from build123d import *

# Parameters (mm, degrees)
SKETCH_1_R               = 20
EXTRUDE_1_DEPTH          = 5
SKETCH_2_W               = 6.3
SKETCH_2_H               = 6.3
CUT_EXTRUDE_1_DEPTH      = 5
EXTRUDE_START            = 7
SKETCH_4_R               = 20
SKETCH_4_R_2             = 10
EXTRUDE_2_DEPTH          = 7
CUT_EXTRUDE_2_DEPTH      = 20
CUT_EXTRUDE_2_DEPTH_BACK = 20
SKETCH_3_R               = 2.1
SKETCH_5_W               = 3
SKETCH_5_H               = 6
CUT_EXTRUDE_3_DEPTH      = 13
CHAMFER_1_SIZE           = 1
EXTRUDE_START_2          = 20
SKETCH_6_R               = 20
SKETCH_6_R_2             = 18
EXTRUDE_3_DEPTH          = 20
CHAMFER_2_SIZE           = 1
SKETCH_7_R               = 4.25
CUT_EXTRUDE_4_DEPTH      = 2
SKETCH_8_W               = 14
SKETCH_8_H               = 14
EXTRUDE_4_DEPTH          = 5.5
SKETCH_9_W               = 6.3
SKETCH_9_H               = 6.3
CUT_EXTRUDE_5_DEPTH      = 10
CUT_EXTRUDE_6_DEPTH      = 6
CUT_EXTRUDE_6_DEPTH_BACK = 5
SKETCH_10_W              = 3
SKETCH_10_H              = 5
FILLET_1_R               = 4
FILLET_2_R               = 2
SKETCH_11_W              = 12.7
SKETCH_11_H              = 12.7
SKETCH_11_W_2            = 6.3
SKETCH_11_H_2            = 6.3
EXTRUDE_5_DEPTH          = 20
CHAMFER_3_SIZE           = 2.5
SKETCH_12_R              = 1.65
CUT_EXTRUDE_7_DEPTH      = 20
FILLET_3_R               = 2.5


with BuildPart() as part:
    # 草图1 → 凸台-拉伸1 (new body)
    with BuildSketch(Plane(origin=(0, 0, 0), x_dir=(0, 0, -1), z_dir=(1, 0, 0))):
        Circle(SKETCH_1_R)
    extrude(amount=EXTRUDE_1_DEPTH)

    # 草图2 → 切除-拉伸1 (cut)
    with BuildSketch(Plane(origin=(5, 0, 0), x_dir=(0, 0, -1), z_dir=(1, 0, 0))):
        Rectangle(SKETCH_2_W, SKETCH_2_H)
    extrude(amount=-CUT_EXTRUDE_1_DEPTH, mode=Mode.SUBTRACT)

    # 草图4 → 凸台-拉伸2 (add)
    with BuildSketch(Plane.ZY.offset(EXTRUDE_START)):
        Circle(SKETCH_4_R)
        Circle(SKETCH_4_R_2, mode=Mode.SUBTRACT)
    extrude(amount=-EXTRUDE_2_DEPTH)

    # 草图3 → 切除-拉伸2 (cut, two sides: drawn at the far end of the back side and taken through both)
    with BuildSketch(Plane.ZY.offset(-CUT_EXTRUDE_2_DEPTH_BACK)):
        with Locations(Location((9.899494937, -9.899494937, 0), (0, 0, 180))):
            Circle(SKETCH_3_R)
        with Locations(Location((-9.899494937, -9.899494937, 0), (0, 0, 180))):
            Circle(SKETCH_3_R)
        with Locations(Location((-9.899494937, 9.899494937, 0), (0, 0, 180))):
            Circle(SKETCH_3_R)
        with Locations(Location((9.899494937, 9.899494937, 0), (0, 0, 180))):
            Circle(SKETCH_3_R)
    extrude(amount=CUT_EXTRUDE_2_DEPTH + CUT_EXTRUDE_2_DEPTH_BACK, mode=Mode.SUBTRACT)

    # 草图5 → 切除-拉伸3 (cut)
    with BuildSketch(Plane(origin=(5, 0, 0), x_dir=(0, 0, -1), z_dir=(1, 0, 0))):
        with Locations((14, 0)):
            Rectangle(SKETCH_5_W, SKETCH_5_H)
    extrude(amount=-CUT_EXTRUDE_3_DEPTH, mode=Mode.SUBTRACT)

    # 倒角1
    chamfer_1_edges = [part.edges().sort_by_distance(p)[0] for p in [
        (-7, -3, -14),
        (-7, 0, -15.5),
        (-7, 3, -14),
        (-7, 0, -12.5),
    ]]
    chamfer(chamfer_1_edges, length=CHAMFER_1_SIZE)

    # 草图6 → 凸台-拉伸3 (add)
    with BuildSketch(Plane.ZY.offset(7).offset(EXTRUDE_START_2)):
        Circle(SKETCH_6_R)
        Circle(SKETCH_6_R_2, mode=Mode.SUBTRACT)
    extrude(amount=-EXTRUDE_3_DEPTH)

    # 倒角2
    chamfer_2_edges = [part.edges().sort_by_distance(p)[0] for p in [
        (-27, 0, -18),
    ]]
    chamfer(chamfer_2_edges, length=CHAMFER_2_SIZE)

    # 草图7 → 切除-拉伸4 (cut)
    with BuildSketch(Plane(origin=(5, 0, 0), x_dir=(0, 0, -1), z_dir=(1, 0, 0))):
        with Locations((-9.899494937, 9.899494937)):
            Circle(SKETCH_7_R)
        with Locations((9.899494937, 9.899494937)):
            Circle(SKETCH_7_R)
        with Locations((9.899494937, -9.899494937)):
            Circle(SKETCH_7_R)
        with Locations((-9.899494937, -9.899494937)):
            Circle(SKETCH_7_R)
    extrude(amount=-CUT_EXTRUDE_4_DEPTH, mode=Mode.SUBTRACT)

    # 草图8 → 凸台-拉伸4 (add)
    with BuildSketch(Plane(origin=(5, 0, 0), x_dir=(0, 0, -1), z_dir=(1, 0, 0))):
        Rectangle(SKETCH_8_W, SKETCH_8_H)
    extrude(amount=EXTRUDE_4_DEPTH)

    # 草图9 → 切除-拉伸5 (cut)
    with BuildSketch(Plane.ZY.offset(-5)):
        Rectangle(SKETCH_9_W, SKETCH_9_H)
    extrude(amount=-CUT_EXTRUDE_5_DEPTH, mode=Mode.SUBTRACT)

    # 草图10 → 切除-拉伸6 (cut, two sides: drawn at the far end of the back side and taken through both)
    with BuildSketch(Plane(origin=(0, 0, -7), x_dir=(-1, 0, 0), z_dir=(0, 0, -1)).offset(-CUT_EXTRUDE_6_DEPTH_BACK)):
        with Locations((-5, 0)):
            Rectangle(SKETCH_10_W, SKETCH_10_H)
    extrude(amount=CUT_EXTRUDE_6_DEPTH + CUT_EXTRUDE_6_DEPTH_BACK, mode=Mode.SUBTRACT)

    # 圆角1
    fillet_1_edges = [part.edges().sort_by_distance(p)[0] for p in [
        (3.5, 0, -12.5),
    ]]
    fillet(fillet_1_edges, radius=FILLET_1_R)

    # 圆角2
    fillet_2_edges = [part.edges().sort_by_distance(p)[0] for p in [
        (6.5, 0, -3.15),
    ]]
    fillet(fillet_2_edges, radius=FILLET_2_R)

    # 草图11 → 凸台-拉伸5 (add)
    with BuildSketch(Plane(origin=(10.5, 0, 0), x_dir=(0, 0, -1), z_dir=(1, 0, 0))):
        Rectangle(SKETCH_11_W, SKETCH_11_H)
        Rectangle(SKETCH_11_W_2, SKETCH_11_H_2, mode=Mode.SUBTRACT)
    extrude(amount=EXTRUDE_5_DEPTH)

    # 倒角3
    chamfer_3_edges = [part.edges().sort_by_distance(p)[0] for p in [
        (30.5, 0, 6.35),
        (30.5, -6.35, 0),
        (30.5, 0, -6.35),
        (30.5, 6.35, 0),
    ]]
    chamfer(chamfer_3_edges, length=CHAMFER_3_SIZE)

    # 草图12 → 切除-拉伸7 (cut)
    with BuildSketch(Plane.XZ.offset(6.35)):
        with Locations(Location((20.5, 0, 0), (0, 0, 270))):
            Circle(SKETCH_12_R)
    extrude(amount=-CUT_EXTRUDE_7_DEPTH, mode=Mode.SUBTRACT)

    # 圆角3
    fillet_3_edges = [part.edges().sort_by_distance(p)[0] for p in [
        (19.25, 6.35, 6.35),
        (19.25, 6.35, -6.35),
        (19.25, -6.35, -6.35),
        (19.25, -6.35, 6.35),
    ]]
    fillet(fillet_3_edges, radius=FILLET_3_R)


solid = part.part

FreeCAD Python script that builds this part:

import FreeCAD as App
import Part
import Sketcher
from FreeCAD import Vector


def edges_at(feature, points):
    """Names of the edges that pass closest to the given points."""
    edges = feature.Shape.Edges
    near = lambda p: min(range(len(edges)), key=lambda i: edges[i].distToShape(Part.Vertex(*p))[0])
    return sorted({f"Edge{near(p) + 1}" for p in points})

doc = App.newDocument("Part")
body = doc.addObject("PartDesign::Body", "Body")

sketch1 = body.newObject("Sketcher::SketchObject", "Sketch")
sketch1.AttachmentSupport = (doc.getObject("YZ_Plane"), [""])
sketch1.MapMode = "FlatFace"
sketch1.addGeometry(Part.Circle(Vector(0, 0, 0), Vector(0, 0, 1), 20), False)
sketch1.addConstraint(Sketcher.Constraint("Coincident", 0, 3, -1, 1))
sketch1.addConstraint(Sketcher.Constraint("Diameter", 0, 40.0))
pad1 = body.newObject("PartDesign::Pad", "Pad")
pad1.Profile = sketch1
pad1.Length = 5

sketch2 = body.newObject("Sketcher::SketchObject", "Sketch001")
sketch2.AttachmentSupport = (doc.getObject("YZ_Plane"), [""])
sketch2.MapMode = "FlatFace"
sketch2.AttachmentOffset = App.Placement(Vector(0, 0, 5), App.Rotation())
sketch2.addGeometry(Part.LineSegment(Vector(3, 3, 0), Vector(-3, 3, 0)), False)
sketch2.addGeometry(Part.LineSegment(Vector(-3, 3, 0), Vector(-3, -3, 0)), False)
sketch2.addGeometry(Part.LineSegment(Vector(-3, -3, 0), Vector(3, -3, 0)), False)
sketch2.addGeometry(Part.LineSegment(Vector(3, -3, 0), Vector(3, 3, 0)), False)
sketch2.addConstraint(Sketcher.Constraint("Coincident", 0, 2, 1, 1))
sketch2.addConstraint(Sketcher.Constraint("Coincident", 1, 2, 2, 1))
sketch2.addConstraint(Sketcher.Constraint("Coincident", 2, 2, 3, 1))
sketch2.addConstraint(Sketcher.Constraint("Coincident", 3, 2, 0, 1))
sketch2.addConstraint(Sketcher.Constraint("Horizontal", 0))
sketch2.addConstraint(Sketcher.Constraint("Vertical", 1))
sketch2.addConstraint(Sketcher.Constraint("Horizontal", 2))
sketch2.addConstraint(Sketcher.Constraint("Vertical", 3))
sketch2.addConstraint(Sketcher.Constraint("Symmetric", 0, 2, 2, 2, -1, 1))
sketch2.addConstraint(Sketcher.Constraint("Equal", 2, 1))
sketch2.addConstraint(Sketcher.Constraint("DistanceX", 0, 2, 0, 1, 6.3))
pocket1 = body.newObject("PartDesign::Pocket", "Pocket")
pocket1.Profile = sketch2
pocket1.Length = 5

sketch3 = body.newObject("Sketcher::SketchObject", "Sketch002")
sketch3.AttachmentSupport = (doc.getObject("YZ_Plane"), [""])
sketch3.MapMode = "FlatFace"
sketch3.AttachmentOffset = App.Placement(Vector(0, 0, -7), App.Rotation())
sketch3.addGeometry(Part.Circle(Vector(0, 0, 0), Vector(0, 0, 1), 20), False)
sketch3.addGeometry(Part.Circle(Vector(0, 0, 0), Vector(0, 0, 1), 10), False)
sketch3.addConstraint(Sketcher.Constraint("Coincident", 0, 3, -1, 1))
sketch3.addConstraint(Sketcher.Constraint("Coincident", 1, 3, -1, 1))
sketch3.addConstraint(Sketcher.Constraint("Diameter", 0, 40.0))
sketch3.addConstraint(Sketcher.Constraint("Diameter", 1, 20.0))
pad2 = body.newObject("PartDesign::Pad", "Pad001")
pad2.Profile = sketch3
pad2.Length = 7

sketch4 = body.newObject("Sketcher::SketchObject", "Sketch003")
sketch4.AttachmentSupport = (doc.getObject("YZ_Plane"), [""])
sketch4.MapMode = "FlatFace"
sketch4.addGeometry(Part.Circle(Vector(-9.9, 9.9, 0), Vector(0, 0, 1), 2.1), False)
sketch4.addGeometry(Part.Circle(Vector(-9.9, -9.9, 0), Vector(0, 0, 1), 2.1), False)
sketch4.addGeometry(Part.Circle(Vector(9.9, -9.9, 0), Vector(0, 0, 1), 2.1), False)
sketch4.addGeometry(Part.Circle(Vector(9.9, 9.9, 0), Vector(0, 0, 1), 2.1), False)
sketch4.addConstraint(Sketcher.Constraint("Equal", 0, 1))
sketch4.addConstraint(Sketcher.Constraint("Equal", 1, 2))
sketch4.addConstraint(Sketcher.Constraint("Equal", 2, 3))
sketch4.addConstraint(Sketcher.Constraint("Symmetric", 0, 3, 2, 3, -1, 1))
sketch4.addConstraint(Sketcher.Constraint("Symmetric", 1, 3, 3, 3, -1, 1))
sketch4.addConstraint(Sketcher.Constraint("Symmetric", 1, 3, 2, 3, -2))
sketch4.addConstraint(Sketcher.Constraint("Diameter", 0, 4.2))
sketch4.addConstraint(Sketcher.Constraint("DistanceY", 1, 3, 0, 3, 19.79899))
sketch4.addConstraint(Sketcher.Constraint("DistanceX", 1, 3, 2, 3, 19.79899))
pocket2 = body.newObject("PartDesign::Pocket", "Pocket001")
pocket2.Profile = sketch4
pocket2.Type = "ThroughAll"
pocket2.Midplane = True

sketch5 = body.newObject("Sketcher::SketchObject", "Sketch004")
sketch5.AttachmentSupport = (doc.getObject("YZ_Plane"), [""])
sketch5.MapMode = "FlatFace"
sketch5.AttachmentOffset = App.Placement(Vector(0, 0, 5), App.Rotation())
sketch5.addGeometry(Part.LineSegment(Vector(3, -12.5, 0), Vector(-3, -12.5, 0)), False)
sketch5.addGeometry(Part.LineSegment(Vector(-3, -12.5, 0), Vector(-3, -15.5, 0)), False)
sketch5.addGeometry(Part.LineSegment(Vector(-3, -15.5, 0), Vector(3, -15.5, 0)), False)
sketch5.addGeometry(Part.LineSegment(Vector(3, -15.5, 0), Vector(3, -12.5, 0)), False)
sketch5.addConstraint(Sketcher.Constraint("Coincident", 0, 2, 1, 1))
sketch5.addConstraint(Sketcher.Constraint("Coincident", 1, 2, 2, 1))
sketch5.addConstraint(Sketcher.Constraint("Coincident", 2, 2, 3, 1))
sketch5.addConstraint(Sketcher.Constraint("Coincident", 3, 2, 0, 1))
sketch5.addConstraint(Sketcher.Constraint("Horizontal", 0))
sketch5.addConstraint(Sketcher.Constraint("Vertical", 1))
sketch5.addConstraint(Sketcher.Constraint("Horizontal", 2))
sketch5.addConstraint(Sketcher.Constraint("Vertical", 3))
sketch5.addConstraint(Sketcher.Constraint("DistanceX", 0, 2, 0, 1, 6.0))
sketch5.addConstraint(Sketcher.Constraint("DistanceY", 1, 2, 1, 1, 3.0))
sketch5.addConstraint(Sketcher.Constraint("DistanceX", 0, 2, -1, 1, 3.0))
sketch5.addConstraint(Sketcher.Constraint("DistanceY", 0, 2, -1, 1, 12.5))
pocket3 = body.newObject("PartDesign::Pocket", "Pocket002")
pocket3.Profile = sketch5
pocket3.Length = 13
doc.recompute()

chamfer = body.newObject("PartDesign::Chamfer", "Chamfer")
chamfer.Base = (pocket3, edges_at(pocket3, [
    (-7, -3, -14),
    (-7, 0, -15.5),
    (-7, 3, -14),
    (-7, 0, -12.5),
]))
chamfer.Size = 1

sketch6 = body.newObject("Sketcher::SketchObject", "Sketch005")
sketch6.AttachmentSupport = (doc.getObject("YZ_Plane"), [""])
sketch6.MapMode = "FlatFace"
sketch6.AttachmentOffset = App.Placement(Vector(0, 0, -27), App.Rotation())
sketch6.addGeometry(Part.Circle(Vector(0, 0, 0), Vector(0, 0, 1), 20), False)
sketch6.addGeometry(Part.Circle(Vector(0, 0, 0), Vector(0, 0, 1), 18), False)
sketch6.addConstraint(Sketcher.Constraint("Coincident", 0, 3, -1, 1))
sketch6.addConstraint(Sketcher.Constraint("Coincident", 1, 3, -1, 1))
sketch6.addConstraint(Sketcher.Constraint("Diameter", 0, 40.0))
sketch6.addConstraint(Sketcher.Constraint("Diameter", 1, 36.0))
pad3 = body.newObject("PartDesign::Pad", "Pad002")
pad3.Profile = sketch6
pad3.Length = 20
doc.recompute()

chamfer2 = body.newObject("PartDesign::Chamfer", "Chamfer001")
chamfer2.Base = (pad3, edges_at(pad3, [(-27, 0, -18)]))
chamfer2.Size = 1

sketch7 = body.newObject("Sketcher::SketchObject", "Sketch006")
sketch7.AttachmentSupport = (doc.getObject("YZ_Plane"), [""])
sketch7.MapMode = "FlatFace"
sketch7.AttachmentOffset = App.Placement(Vector(0, 0, 5), App.Rotation())
sketch7.addGeometry(Part.Circle(Vector(9.9, 9.9, 0), Vector(0, 0, 1), 4.2), False)
sketch7.addGeometry(Part.Circle(Vector(9.9, -9.9, 0), Vector(0, 0, 1), 4.2), False)
sketch7.addGeometry(Part.Circle(Vector(-9.9, -9.9, 0), Vector(0, 0, 1), 4.2), False)
sketch7.addGeometry(Part.Circle(Vector(-9.9, 9.9, 0), Vector(0, 0, 1), 4.2), False)
sketch7.addConstraint(Sketcher.Constraint("Equal", 0, 1))
sketch7.addConstraint(Sketcher.Constraint("Equal", 1, 2))
sketch7.addConstraint(Sketcher.Constraint("Equal", 2, 3))
sketch7.addConstraint(Sketcher.Constraint("Symmetric", 0, 3, 2, 3, -1, 1))
sketch7.addConstraint(Sketcher.Constraint("Symmetric", 1, 3, 3, 3, -1, 1))
sketch7.addConstraint(Sketcher.Constraint("Symmetric", 1, 3, 2, 3, -2))
sketch7.addConstraint(Sketcher.Constraint("Diameter", 0, 8.5))
sketch7.addConstraint(Sketcher.Constraint("DistanceY", 1, 3, 0, 3, 19.79899))
sketch7.addConstraint(Sketcher.Constraint("DistanceX", 2, 3, 1, 3, 19.79899))
pocket4 = body.newObject("PartDesign::Pocket", "Pocket003")
pocket4.Profile = sketch7
pocket4.Length = 2

sketch8 = body.newObject("Sketcher::SketchObject", "Sketch007")
sketch8.AttachmentSupport = (doc.getObject("YZ_Plane"), [""])
sketch8.MapMode = "FlatFace"
sketch8.AttachmentOffset = App.Placement(Vector(0, 0, 5), App.Rotation())
sketch8.addGeometry(Part.LineSegment(Vector(7, 7, 0), Vector(-7, 7, 0)), False)
sketch8.addGeometry(Part.LineSegment(Vector(-7, 7, 0), Vector(-7, -7, 0)), False)
sketch8.addGeometry(Part.LineSegment(Vector(-7, -7, 0), Vector(7, -7, 0)), False)
sketch8.addGeometry(Part.LineSegment(Vector(7, -7, 0), Vector(7, 7, 0)), False)
sketch8.addConstraint(Sketcher.Constraint("Coincident", 0, 2, 1, 1))
sketch8.addConstraint(Sketcher.Constraint("Coincident", 1, 2, 2, 1))
sketch8.addConstraint(Sketcher.Constraint("Coincident", 2, 2, 3, 1))
sketch8.addConstraint(Sketcher.Constraint("Coincident", 3, 2, 0, 1))
sketch8.addConstraint(Sketcher.Constraint("Horizontal", 0))
sketch8.addConstraint(Sketcher.Constraint("Vertical", 1))
sketch8.addConstraint(Sketcher.Constraint("Horizontal", 2))
sketch8.addConstraint(Sketcher.Constraint("Vertical", 3))
sketch8.addConstraint(Sketcher.Constraint("Symmetric", 0, 2, 2, 2, -1, 1))
sketch8.addConstraint(Sketcher.Constraint("Equal", 2, 1))
sketch8.addConstraint(Sketcher.Constraint("DistanceX", 0, 2, 0, 1, 14.0))
pad4 = body.newObject("PartDesign::Pad", "Pad003")
pad4.Profile = sketch8
pad4.Length = 5.5

sketch9 = body.newObject("Sketcher::SketchObject", "Sketch008")
sketch9.AttachmentSupport = (doc.getObject("YZ_Plane"), [""])
sketch9.MapMode = "FlatFace"
sketch9.AttachmentOffset = App.Placement(Vector(0, 0, 5), App.Rotation())
sketch9.addGeometry(Part.LineSegment(Vector(3, -3, 0), Vector(-3, -3, 0)), False)
sketch9.addGeometry(Part.LineSegment(Vector(-3, -3, 0), Vector(-3, 3, 0)), False)
sketch9.addGeometry(Part.LineSegment(Vector(-3, 3, 0), Vector(3, 3, 0)), False)
sketch9.addGeometry(Part.LineSegment(Vector(3, 3, 0), Vector(3, -3, 0)), False)
sketch9.addConstraint(Sketcher.Constraint("Coincident", 0, 2, 1, 1))
sketch9.addConstraint(Sketcher.Constraint("Coincident", 1, 2, 2, 1))
sketch9.addConstraint(Sketcher.Constraint("Coincident", 2, 2, 3, 1))
sketch9.addConstraint(Sketcher.Constraint("Coincident", 3, 2, 0, 1))
sketch9.addConstraint(Sketcher.Constraint("Horizontal", 0))
sketch9.addConstraint(Sketcher.Constraint("Vertical", 1))
sketch9.addConstraint(Sketcher.Constraint("Horizontal", 2))
sketch9.addConstraint(Sketcher.Constraint("Vertical", 3))
sketch9.addConstraint(Sketcher.Constraint("Symmetric", 0, 2, 2, 2, -1, 1))
sketch9.addConstraint(Sketcher.Constraint("Equal", 2, 1))
sketch9.addConstraint(Sketcher.Constraint("DistanceX", 0, 2, 0, 1, 6.3))
pocket5 = body.newObject("PartDesign::Pocket", "Pocket004")
pocket5.Profile = sketch9
pocket5.Length = 10
pocket5.Reversed = True

sketch10 = body.newObject("Sketcher::SketchObject", "Sketch009")
sketch10.AttachmentSupport = (doc.getObject("XY_Plane"), [""])
sketch10.MapMode = "FlatFace"
sketch10.AttachmentOffset = App.Placement(Vector(0, 0, -7), App.Rotation())
sketch10.addGeometry(Part.LineSegment(Vector(6.5, 2.5, 0), Vector(6.5, -2.5, 0)), False)
sketch10.addGeometry(Part.LineSegment(Vector(6.5, -2.5, 0), Vector(3.5, -2.5, 0)), False)
sketch10.addGeometry(Part.LineSegment(Vector(3.5, -2.5, 0), Vector(3.5, 2.5, 0)), False)
sketch10.addGeometry(Part.LineSegment(Vector(3.5, 2.5, 0), Vector(6.5, 2.5, 0)), False)
sketch10.addConstraint(Sketcher.Constraint("Coincident", 0, 2, 1, 1))
sketch10.addConstraint(Sketcher.Constraint("Coincident", 1, 2, 2, 1))
sketch10.addConstraint(Sketcher.Constraint("Coincident", 2, 2, 3, 1))
sketch10.addConstraint(Sketcher.Constraint("Coincident", 3, 2, 0, 1))
sketch10.addConstraint(Sketcher.Constraint("Vertical", 0))
sketch10.addConstraint(Sketcher.Constraint("Horizontal", 1))
sketch10.addConstraint(Sketcher.Constraint("Vertical", 2))
sketch10.addConstraint(Sketcher.Constraint("Horizontal", 3))
sketch10.addConstraint(Sketcher.Constraint("DistanceX", 1, 2, 1, 1, 3.0))
sketch10.addConstraint(Sketcher.Constraint("DistanceY", 0, 2, 0, 1, 5.0))
sketch10.addConstraint(Sketcher.Constraint("DistanceX", -1, 1, 0, 2, 6.5))
sketch10.addConstraint(Sketcher.Constraint("DistanceY", 0, 2, -1, 1, 2.5))
pocket6 = body.newObject("PartDesign::Pocket", "Pocket005")
pocket6.Profile = sketch10
pocket6.Type = "TwoLengths"
pocket6.Length = 6
pocket6.Length2 = 5
doc.recompute()

fillet = body.newObject("PartDesign::Fillet", "Fillet")
fillet.Base = (pocket6, edges_at(pocket6, [(3.5, 0, -12.5)]))
fillet.Radius = 4
doc.recompute()

fillet2 = body.newObject("PartDesign::Fillet", "Fillet001")
fillet2.Base = (fillet, edges_at(fillet, [(6.5, 0, -3.15)]))
fillet2.Radius = 2

sketch11 = body.newObject("Sketcher::SketchObject", "Sketch010")
sketch11.AttachmentSupport = (doc.getObject("YZ_Plane"), [""])
sketch11.MapMode = "FlatFace"
sketch11.AttachmentOffset = App.Placement(Vector(0, 0, 10.5), App.Rotation())
sketch11.addGeometry(Part.LineSegment(Vector(6, 6, 0), Vector(-6, 6, 0)), False)
sketch11.addGeometry(Part.LineSegment(Vector(-6, 6, 0), Vector(-6, -6, 0)), False)
sketch11.addGeometry(Part.LineSegment(Vector(-6, -6, 0), Vector(6, -6, 0)), False)
sketch11.addGeometry(Part.LineSegment(Vector(6, -6, 0), Vector(6, 6, 0)), False)
sketch11.addGeometry(Part.LineSegment(Vector(-3, -3, 0), Vector(-3, 3, 0)), False)
sketch11.addGeometry(Part.LineSegment(Vector(-3, 3, 0), Vector(3, 3, 0)), False)
sketch11.addGeometry(Part.LineSegment(Vector(3, 3, 0), Vector(3, -3, 0)), False)
sketch11.addGeometry(Part.LineSegment(Vector(3, -3, 0), Vector(-3, -3, 0)), False)
sketch11.addConstraint(Sketcher.Constraint("Coincident", 0, 2, 1, 1))
sketch11.addConstraint(Sketcher.Constraint("Coincident", 1, 2, 2, 1))
sketch11.addConstraint(Sketcher.Constraint("Coincident", 2, 2, 3, 1))
sketch11.addConstraint(Sketcher.Constraint("Coincident", 3, 2, 0, 1))
sketch11.addConstraint(Sketcher.Constraint("Coincident", 4, 2, 5, 1))
sketch11.addConstraint(Sketcher.Constraint("Coincident", 5, 2, 6, 1))
sketch11.addConstraint(Sketcher.Constraint("Coincident", 6, 2, 7, 1))
sketch11.addConstraint(Sketcher.Constraint("Coincident", 7, 2, 4, 1))
sketch11.addConstraint(Sketcher.Constraint("Horizontal", 0))
sketch11.addConstraint(Sketcher.Constraint("Vertical", 1))
sketch11.addConstraint(Sketcher.Constraint("Horizontal", 2))
sketch11.addConstraint(Sketcher.Constraint("Vertical", 3))
sketch11.addConstraint(Sketcher.Constraint("Vertical", 4))
sketch11.addConstraint(Sketcher.Constraint("Horizontal", 5))
sketch11.addConstraint(Sketcher.Constraint("Vertical", 6))
sketch11.addConstraint(Sketcher.Constraint("Horizontal", 7))
sketch11.addConstraint(Sketcher.Constraint("Symmetric", 0, 2, 2, 2, -1, 1))
sketch11.addConstraint(Sketcher.Constraint("Symmetric", 4, 2, 6, 2, -1, 1))
sketch11.addConstraint(Sketcher.Constraint("Equal", 2, 1))
sketch11.addConstraint(Sketcher.Constraint("Equal", 7, 4))
sketch11.addConstraint(Sketcher.Constraint("DistanceX", 0, 2, 0, 1, 12.7))
sketch11.addConstraint(Sketcher.Constraint("DistanceX", 5, 1, 5, 2, 6.3))
pad5 = body.newObject("PartDesign::Pad", "Pad004")
pad5.Profile = sketch11
pad5.Length = 20
doc.recompute()

chamfer3 = body.newObject("PartDesign::Chamfer", "Chamfer002")
chamfer3.Base = (pad5, edges_at(pad5, [
    (30.5, 0, 6.35),
    (30.5, -6.35, 0),
    (30.5, 0, -6.35),
    (30.5, 6.35, 0),
]))
chamfer3.Size = 2.5

sketch12 = body.newObject("Sketcher::SketchObject", "Sketch011")
sketch12.AttachmentSupport = (doc.getObject("XZ_Plane"), [""])
sketch12.MapMode = "FlatFace"
sketch12.AttachmentOffset = App.Placement(Vector(0, 0, 6.35), App.Rotation())
sketch12.addGeometry(Part.Circle(Vector(20.5, 0, 0), Vector(0, 0, 1), 1.6), False)
sketch12.addConstraint(Sketcher.Constraint("PointOnObject", 0, 3, -1))
sketch12.addConstraint(Sketcher.Constraint("Diameter", 0, 3.3))
sketch12.addConstraint(Sketcher.Constraint("DistanceX", -1, 1, 0, 3, 20.5))
pocket7 = body.newObject("PartDesign::Pocket", "Pocket006")
pocket7.Profile = sketch12
pocket7.Length = 20
doc.recompute()

fillet3 = body.newObject("PartDesign::Fillet", "Fillet002")
fillet3.Base = (pocket7, edges_at(pocket7, [
    (19.25, 6.35, 6.35),
    (19.25, 6.35, -6.35),
    (19.25, -6.35, -6.35),
    (19.25, -6.35, 6.35),
]))
fillet3.Radius = 2.5

doc.recompute()
